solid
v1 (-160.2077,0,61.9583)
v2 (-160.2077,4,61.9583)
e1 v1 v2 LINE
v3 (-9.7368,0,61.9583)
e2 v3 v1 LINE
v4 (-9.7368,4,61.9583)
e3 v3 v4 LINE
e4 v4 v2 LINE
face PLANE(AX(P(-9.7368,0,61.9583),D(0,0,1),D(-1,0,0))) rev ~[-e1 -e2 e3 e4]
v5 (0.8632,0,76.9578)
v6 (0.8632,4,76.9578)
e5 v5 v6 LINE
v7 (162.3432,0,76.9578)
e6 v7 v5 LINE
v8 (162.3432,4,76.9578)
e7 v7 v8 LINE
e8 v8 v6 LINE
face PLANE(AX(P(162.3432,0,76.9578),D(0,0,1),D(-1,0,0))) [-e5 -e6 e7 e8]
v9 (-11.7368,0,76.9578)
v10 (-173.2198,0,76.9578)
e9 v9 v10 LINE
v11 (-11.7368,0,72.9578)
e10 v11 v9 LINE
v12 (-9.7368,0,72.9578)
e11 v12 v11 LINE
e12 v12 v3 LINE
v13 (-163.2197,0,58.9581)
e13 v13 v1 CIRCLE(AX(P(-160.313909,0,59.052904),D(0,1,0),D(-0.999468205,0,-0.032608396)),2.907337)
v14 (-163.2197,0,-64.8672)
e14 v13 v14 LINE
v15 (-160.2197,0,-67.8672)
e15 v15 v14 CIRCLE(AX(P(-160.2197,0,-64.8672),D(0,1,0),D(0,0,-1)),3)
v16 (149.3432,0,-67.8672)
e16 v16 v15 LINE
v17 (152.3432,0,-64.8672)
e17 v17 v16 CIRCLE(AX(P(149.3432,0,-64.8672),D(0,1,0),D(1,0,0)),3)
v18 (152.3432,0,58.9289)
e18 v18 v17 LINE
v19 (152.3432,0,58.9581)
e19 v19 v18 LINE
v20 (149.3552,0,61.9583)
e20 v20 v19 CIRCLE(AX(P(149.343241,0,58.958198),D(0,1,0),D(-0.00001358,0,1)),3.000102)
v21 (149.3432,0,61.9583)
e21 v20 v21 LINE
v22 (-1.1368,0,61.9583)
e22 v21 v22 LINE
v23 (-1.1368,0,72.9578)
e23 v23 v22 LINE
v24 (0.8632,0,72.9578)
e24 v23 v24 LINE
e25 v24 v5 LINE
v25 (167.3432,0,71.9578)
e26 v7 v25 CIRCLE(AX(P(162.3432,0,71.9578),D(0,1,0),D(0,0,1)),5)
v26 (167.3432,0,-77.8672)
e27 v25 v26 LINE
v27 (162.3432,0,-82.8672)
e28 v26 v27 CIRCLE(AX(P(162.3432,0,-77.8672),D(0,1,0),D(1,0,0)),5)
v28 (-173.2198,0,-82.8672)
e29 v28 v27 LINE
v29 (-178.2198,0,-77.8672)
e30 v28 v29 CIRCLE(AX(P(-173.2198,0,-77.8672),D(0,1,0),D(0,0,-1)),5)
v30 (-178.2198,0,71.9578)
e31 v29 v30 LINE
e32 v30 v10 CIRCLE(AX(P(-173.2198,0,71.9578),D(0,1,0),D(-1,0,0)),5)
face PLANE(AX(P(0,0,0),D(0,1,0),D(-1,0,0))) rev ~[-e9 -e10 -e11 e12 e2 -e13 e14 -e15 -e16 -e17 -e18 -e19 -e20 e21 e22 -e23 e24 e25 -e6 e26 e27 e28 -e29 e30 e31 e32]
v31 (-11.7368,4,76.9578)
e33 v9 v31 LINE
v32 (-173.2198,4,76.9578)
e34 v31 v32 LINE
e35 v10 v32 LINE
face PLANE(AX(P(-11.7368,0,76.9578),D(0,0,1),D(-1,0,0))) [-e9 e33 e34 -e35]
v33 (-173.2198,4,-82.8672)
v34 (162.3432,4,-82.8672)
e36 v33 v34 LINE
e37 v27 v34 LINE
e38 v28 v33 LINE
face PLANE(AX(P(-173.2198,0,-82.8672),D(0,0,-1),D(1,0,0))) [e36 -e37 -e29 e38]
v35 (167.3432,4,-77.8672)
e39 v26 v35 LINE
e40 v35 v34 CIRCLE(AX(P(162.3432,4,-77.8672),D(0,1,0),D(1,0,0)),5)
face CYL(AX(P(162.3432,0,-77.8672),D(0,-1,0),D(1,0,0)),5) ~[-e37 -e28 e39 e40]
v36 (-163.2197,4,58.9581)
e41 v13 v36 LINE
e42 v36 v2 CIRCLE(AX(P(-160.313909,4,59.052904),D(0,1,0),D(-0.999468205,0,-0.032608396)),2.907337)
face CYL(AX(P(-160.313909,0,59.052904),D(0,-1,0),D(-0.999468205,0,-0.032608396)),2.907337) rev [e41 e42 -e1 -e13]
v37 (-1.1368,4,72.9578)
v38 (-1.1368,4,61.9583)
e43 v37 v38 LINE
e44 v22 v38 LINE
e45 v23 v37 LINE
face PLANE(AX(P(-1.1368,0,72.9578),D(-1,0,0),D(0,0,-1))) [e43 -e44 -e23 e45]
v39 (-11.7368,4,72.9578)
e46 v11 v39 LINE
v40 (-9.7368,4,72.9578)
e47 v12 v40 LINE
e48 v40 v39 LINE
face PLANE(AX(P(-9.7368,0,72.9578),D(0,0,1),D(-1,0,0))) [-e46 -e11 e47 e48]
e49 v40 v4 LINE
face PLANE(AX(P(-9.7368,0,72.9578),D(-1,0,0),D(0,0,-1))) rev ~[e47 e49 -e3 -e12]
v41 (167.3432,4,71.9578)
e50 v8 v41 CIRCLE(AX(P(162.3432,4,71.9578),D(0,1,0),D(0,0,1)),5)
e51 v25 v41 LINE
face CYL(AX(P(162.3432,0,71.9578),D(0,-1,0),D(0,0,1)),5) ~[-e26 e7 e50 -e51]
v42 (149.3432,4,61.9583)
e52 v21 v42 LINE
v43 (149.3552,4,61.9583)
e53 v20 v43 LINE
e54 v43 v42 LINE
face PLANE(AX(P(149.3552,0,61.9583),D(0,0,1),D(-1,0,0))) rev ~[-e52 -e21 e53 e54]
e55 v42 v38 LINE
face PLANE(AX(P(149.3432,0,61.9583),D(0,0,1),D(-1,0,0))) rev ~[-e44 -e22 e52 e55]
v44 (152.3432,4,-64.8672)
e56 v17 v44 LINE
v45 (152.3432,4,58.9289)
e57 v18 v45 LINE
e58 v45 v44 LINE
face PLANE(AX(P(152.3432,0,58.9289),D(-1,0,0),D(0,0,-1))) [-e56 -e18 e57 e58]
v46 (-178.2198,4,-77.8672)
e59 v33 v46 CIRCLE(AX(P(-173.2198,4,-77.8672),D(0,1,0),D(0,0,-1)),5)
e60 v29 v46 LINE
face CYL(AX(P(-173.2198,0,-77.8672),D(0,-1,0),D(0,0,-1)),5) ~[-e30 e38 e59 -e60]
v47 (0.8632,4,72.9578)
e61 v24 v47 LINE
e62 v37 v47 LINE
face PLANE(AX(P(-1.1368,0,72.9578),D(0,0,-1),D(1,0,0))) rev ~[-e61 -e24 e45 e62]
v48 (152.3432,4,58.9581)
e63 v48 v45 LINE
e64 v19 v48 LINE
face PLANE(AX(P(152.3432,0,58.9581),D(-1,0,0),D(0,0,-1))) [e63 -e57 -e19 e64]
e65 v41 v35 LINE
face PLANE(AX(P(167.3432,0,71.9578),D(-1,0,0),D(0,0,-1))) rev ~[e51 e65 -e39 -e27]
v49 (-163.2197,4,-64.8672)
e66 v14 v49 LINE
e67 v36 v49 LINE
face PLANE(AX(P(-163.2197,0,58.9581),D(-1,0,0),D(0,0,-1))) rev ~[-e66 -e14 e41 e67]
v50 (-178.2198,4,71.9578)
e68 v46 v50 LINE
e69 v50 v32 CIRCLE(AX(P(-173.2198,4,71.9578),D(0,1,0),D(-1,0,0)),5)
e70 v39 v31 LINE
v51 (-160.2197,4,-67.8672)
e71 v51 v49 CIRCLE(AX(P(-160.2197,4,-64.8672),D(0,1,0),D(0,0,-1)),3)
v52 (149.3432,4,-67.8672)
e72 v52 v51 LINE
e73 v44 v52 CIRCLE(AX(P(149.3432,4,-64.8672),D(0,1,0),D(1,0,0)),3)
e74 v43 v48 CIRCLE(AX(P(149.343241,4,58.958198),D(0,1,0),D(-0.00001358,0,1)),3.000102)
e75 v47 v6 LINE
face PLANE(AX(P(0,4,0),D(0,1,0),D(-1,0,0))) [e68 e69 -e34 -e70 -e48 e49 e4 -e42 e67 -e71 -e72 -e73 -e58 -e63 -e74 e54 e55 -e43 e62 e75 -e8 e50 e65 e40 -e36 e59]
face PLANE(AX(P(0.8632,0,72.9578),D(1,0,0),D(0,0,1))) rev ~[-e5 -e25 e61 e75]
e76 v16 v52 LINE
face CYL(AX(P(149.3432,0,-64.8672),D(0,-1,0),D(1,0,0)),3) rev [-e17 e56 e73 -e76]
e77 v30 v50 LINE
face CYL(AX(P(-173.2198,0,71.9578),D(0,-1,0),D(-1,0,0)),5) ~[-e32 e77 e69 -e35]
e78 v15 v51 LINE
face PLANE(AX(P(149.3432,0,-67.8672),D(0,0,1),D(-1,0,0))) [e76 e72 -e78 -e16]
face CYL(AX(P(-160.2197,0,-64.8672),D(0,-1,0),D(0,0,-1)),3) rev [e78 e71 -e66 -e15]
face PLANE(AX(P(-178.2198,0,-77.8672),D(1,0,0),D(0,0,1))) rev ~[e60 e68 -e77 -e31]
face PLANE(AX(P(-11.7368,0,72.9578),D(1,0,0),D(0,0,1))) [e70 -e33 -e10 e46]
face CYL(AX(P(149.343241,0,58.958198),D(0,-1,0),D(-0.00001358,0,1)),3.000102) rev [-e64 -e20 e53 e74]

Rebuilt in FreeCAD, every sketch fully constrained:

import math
import FreeCAD as App
import Part
import Sketcher
from FreeCAD import Vector

doc = App.newDocument("Part")
body = doc.addObject("PartDesign::Body", "Body")

sketch1 = body.newObject("Sketcher::SketchObject", "Sketch")
sketch1.AttachmentSupport = (doc.getObject("XZ_Plane"), [""])
sketch1.MapMode = "FlatFace"
sketch1.addGeometry([
    Part.ArcOfCircle(Part.Circle(Vector(162.3, 72, 0), Vector(0, 0, 1), 5), math.radians(0), math.radians(90)),
    Part.LineSegment(Vector(167.3, 72, 0), Vector(167.3, -77.9, 0)),
    Part.ArcOfCircle(Part.Circle(Vector(162.3, -77.9, 0), Vector(0, 0, 1), 5), math.radians(-90), math.radians(0)),
    Part.LineSegment(Vector(162.3, -82.9, 0), Vector(-173.2, -82.9, 0)),
    Part.ArcOfCircle(Part.Circle(Vector(-173.2, -77.9, 0), Vector(0, 0, 1), 5), math.radians(180), math.radians(270)),
    Part.LineSegment(Vector(-178.2, -77.9, 0), Vector(-178.2, 72, 0)),
    Part.ArcOfCircle(Part.Circle(Vector(-173.2, 72, 0), Vector(0, 0, 1), 5), math.radians(90), math.radians(180)),
    Part.LineSegment(Vector(-173.2, 77, 0), Vector(-11.7, 77, 0)),
    Part.LineSegment(Vector(-11.7, 77, 0), Vector(-11.7, 73, 0)),
    Part.LineSegment(Vector(-11.7, 73, 0), Vector(-9.7, 73, 0)),
    Part.LineSegment(Vector(-9.7, 73, 0), Vector(-9.7, 62, 0)),
    Part.LineSegment(Vector(-9.7, 62, 0), Vector(-160.2, 62, 0)),
    Part.ArcOfCircle(Part.Circle(Vector(-160.3, 59.1, 0), Vector(0, 0, 1), 2.9), math.radians(88), math.radians(182)),
    Part.LineSegment(Vector(-163.2, 59, 0), Vector(-163.2, -64.9, 0)),
    Part.ArcOfCircle(Part.Circle(Vector(-160.2, -64.9, 0), Vector(0, 0, 1), 3), math.radians(180), math.radians(270)),
    Part.LineSegment(Vector(-160.2, -67.9, 0), Vector(149.3, -67.9, 0)),
    Part.ArcOfCircle(Part.Circle(Vector(149.3, -64.9, 0), Vector(0, 0, 1), 3), math.radians(-90), math.radians(0)),
    Part.LineSegment(Vector(152.3, -64.9, 0), Vector(152.3, 59, 0)),
    Part.ArcOfCircle(Part.Circle(Vector(149.3, 59, 0), Vector(0, 0, 1), 3), math.radians(0), math.radians(90)),
    Part.LineSegment(Vector(149.4, 62, 0), Vector(-1.1, 62, 0)),
    Part.LineSegment(Vector(-1.1, 62, 0), Vector(-1.1, 73, 0)),
    Part.LineSegment(Vector(-1.1, 73, 0), Vector(0.9, 73, 0)),
    Part.LineSegment(Vector(0.9, 73, 0), Vector(0.9, 77, 0)),
    Part.LineSegment(Vector(0.9, 77, 0), Vector(162.3, 77, 0)),
], False)
sketch1.addConstraint([
    Sketcher.Constraint("Tangent", 0, 1, 1, 1),
    Sketcher.Constraint("Tangent", 1, 2, 2, 2),
    Sketcher.Constraint("Tangent", 2, 1, 3, 1),
    Sketcher.Constraint("Tangent", 3, 2, 4, 2),
    Sketcher.Constraint("Tangent", 4, 1, 5, 1),
    Sketcher.Constraint("Tangent", 5, 2, 6, 2),
    Sketcher.Constraint("Tangent", 6, 1, 7, 1),
    Sketcher.Constraint("Coincident", 7, 2, 8, 1),
    Sketcher.Constraint("Coincident", 8, 2, 9, 1),
    Sketcher.Constraint("Coincident", 9, 2, 10, 1),
    Sketcher.Constraint("Coincident", 10, 2, 11, 1),
    Sketcher.Constraint("Coincident", 11, 2, 12, 1),
    Sketcher.Constraint("Coincident", 12, 2, 13, 1),
    Sketcher.Constraint("Tangent", 13, 2, 14, 1),
    Sketcher.Constraint("Tangent", 14, 2, 15, 1),
    Sketcher.Constraint("Tangent", 15, 2, 16, 1),
    Sketcher.Constraint("Tangent", 16, 2, 17, 1),
    Sketcher.Constraint("Tangent", 17, 2, 18, 1),
    Sketcher.Constraint("Coincident", 18, 2, 19, 1),
    Sketcher.Constraint("Coincident", 19, 2, 20, 1),
    Sketcher.Constraint("Coincident", 20, 2, 21, 1),
    Sketcher.Constraint("Coincident", 21, 2, 22, 1),
    Sketcher.Constraint("Coincident", 22, 2, 23, 1),
    Sketcher.Constraint("Tangent", 23, 2, 0, 2),
    Sketcher.Constraint("Vertical", 1),
    Sketcher.Constraint("Horizontal", 3),
    Sketcher.Constraint("Vertical", 5),
    Sketcher.Constraint("Horizontal", 7),
    Sketcher.Constraint("Vertical", 8),
    Sketcher.Constraint("Horizontal", 9),
    Sketcher.Constraint("Vertical", 10),
    Sketcher.Constraint("Horizontal", 11),
    Sketcher.Constraint("Vertical", 13),
    Sketcher.Constraint("Horizontal", 15),
    Sketcher.Constraint("Vertical", 17),
    Sketcher.Constraint("Horizontal", 19),
    Sketcher.Constraint("Vertical", 20),
    Sketcher.Constraint("Horizontal", 21),
    Sketcher.Constraint("Vertical", 22),
    Sketcher.Constraint("Horizontal", 23),
    Sketcher.Constraint("Equal", 0, 2),
    Sketcher.Constraint("Equal", 2, 4),
    Sketcher.Constraint("Equal", 4, 6),
    Sketcher.Constraint("Equal", 14, 16),
    Sketcher.Constraint("Equal", 16, 18),
    Sketcher.Constraint("Horizontal", 0, 3, 6, 3),
    Sketcher.Constraint("Horizontal", 18, 3, 12, 2),
    Sketcher.Constraint("Horizontal", 11, 2, 18, 2),
    Sketcher.Constraint("Horizontal", 9, 2, 20, 2),
    Sketcher.Constraint("Equal", 9, 21),
    Sketcher.Constraint("Radius", 0, 5.0),
    Sketcher.Constraint("Radius", 14, 3.0),
    Sketcher.Constraint("DistanceX", 9, 1, 9, 2, 2.0),
    Sketcher.Constraint("DistanceY", 8, 2, 8, 1, 4.0),
    Sketcher.Constraint("DistanceX", 4, 3, 14, 3, 13.0),
    Sketcher.Constraint("DistanceY", 4, 3, 14, 3, 13.0),
    Sketcher.Constraint("DistanceX", 16, 3, 2, 3, 13.0),
    Sketcher.Constraint("DistanceX", 23, 1, 23, 2, 161.48),
    Sketcher.Constraint("Radius", 12, 2.9073),
    Sketcher.Constraint("DistanceX", 10, 2, 19, 2, 8.6),
    Sketcher.Constraint("DistanceX", 3, 2, 3, 1, 335.563),
    Sketcher.Constraint("DistanceX", 11, 2, 11, 1, 150.471),
    Sketcher.Constraint("DistanceX", 19, 2, 19, 1, 150.492),
    Sketcher.Constraint("DistanceY", 1, 2, 1, 1, 149.825),
    Sketcher.Constraint("DistanceY", 4, 3, 12, 3, 136.92),
    Sketcher.Constraint("DistanceX", 12, 3, -1, 1, 160.314),
    Sketcher.Constraint("DistanceY", -1, 1, 12, 3, 59.053),
])
pad1 = body.newObject("PartDesign::Pad", "Pad")
pad1.Profile = sketch1
pad1.Length = 4
pad1.Reversed = True

doc.recompute()
